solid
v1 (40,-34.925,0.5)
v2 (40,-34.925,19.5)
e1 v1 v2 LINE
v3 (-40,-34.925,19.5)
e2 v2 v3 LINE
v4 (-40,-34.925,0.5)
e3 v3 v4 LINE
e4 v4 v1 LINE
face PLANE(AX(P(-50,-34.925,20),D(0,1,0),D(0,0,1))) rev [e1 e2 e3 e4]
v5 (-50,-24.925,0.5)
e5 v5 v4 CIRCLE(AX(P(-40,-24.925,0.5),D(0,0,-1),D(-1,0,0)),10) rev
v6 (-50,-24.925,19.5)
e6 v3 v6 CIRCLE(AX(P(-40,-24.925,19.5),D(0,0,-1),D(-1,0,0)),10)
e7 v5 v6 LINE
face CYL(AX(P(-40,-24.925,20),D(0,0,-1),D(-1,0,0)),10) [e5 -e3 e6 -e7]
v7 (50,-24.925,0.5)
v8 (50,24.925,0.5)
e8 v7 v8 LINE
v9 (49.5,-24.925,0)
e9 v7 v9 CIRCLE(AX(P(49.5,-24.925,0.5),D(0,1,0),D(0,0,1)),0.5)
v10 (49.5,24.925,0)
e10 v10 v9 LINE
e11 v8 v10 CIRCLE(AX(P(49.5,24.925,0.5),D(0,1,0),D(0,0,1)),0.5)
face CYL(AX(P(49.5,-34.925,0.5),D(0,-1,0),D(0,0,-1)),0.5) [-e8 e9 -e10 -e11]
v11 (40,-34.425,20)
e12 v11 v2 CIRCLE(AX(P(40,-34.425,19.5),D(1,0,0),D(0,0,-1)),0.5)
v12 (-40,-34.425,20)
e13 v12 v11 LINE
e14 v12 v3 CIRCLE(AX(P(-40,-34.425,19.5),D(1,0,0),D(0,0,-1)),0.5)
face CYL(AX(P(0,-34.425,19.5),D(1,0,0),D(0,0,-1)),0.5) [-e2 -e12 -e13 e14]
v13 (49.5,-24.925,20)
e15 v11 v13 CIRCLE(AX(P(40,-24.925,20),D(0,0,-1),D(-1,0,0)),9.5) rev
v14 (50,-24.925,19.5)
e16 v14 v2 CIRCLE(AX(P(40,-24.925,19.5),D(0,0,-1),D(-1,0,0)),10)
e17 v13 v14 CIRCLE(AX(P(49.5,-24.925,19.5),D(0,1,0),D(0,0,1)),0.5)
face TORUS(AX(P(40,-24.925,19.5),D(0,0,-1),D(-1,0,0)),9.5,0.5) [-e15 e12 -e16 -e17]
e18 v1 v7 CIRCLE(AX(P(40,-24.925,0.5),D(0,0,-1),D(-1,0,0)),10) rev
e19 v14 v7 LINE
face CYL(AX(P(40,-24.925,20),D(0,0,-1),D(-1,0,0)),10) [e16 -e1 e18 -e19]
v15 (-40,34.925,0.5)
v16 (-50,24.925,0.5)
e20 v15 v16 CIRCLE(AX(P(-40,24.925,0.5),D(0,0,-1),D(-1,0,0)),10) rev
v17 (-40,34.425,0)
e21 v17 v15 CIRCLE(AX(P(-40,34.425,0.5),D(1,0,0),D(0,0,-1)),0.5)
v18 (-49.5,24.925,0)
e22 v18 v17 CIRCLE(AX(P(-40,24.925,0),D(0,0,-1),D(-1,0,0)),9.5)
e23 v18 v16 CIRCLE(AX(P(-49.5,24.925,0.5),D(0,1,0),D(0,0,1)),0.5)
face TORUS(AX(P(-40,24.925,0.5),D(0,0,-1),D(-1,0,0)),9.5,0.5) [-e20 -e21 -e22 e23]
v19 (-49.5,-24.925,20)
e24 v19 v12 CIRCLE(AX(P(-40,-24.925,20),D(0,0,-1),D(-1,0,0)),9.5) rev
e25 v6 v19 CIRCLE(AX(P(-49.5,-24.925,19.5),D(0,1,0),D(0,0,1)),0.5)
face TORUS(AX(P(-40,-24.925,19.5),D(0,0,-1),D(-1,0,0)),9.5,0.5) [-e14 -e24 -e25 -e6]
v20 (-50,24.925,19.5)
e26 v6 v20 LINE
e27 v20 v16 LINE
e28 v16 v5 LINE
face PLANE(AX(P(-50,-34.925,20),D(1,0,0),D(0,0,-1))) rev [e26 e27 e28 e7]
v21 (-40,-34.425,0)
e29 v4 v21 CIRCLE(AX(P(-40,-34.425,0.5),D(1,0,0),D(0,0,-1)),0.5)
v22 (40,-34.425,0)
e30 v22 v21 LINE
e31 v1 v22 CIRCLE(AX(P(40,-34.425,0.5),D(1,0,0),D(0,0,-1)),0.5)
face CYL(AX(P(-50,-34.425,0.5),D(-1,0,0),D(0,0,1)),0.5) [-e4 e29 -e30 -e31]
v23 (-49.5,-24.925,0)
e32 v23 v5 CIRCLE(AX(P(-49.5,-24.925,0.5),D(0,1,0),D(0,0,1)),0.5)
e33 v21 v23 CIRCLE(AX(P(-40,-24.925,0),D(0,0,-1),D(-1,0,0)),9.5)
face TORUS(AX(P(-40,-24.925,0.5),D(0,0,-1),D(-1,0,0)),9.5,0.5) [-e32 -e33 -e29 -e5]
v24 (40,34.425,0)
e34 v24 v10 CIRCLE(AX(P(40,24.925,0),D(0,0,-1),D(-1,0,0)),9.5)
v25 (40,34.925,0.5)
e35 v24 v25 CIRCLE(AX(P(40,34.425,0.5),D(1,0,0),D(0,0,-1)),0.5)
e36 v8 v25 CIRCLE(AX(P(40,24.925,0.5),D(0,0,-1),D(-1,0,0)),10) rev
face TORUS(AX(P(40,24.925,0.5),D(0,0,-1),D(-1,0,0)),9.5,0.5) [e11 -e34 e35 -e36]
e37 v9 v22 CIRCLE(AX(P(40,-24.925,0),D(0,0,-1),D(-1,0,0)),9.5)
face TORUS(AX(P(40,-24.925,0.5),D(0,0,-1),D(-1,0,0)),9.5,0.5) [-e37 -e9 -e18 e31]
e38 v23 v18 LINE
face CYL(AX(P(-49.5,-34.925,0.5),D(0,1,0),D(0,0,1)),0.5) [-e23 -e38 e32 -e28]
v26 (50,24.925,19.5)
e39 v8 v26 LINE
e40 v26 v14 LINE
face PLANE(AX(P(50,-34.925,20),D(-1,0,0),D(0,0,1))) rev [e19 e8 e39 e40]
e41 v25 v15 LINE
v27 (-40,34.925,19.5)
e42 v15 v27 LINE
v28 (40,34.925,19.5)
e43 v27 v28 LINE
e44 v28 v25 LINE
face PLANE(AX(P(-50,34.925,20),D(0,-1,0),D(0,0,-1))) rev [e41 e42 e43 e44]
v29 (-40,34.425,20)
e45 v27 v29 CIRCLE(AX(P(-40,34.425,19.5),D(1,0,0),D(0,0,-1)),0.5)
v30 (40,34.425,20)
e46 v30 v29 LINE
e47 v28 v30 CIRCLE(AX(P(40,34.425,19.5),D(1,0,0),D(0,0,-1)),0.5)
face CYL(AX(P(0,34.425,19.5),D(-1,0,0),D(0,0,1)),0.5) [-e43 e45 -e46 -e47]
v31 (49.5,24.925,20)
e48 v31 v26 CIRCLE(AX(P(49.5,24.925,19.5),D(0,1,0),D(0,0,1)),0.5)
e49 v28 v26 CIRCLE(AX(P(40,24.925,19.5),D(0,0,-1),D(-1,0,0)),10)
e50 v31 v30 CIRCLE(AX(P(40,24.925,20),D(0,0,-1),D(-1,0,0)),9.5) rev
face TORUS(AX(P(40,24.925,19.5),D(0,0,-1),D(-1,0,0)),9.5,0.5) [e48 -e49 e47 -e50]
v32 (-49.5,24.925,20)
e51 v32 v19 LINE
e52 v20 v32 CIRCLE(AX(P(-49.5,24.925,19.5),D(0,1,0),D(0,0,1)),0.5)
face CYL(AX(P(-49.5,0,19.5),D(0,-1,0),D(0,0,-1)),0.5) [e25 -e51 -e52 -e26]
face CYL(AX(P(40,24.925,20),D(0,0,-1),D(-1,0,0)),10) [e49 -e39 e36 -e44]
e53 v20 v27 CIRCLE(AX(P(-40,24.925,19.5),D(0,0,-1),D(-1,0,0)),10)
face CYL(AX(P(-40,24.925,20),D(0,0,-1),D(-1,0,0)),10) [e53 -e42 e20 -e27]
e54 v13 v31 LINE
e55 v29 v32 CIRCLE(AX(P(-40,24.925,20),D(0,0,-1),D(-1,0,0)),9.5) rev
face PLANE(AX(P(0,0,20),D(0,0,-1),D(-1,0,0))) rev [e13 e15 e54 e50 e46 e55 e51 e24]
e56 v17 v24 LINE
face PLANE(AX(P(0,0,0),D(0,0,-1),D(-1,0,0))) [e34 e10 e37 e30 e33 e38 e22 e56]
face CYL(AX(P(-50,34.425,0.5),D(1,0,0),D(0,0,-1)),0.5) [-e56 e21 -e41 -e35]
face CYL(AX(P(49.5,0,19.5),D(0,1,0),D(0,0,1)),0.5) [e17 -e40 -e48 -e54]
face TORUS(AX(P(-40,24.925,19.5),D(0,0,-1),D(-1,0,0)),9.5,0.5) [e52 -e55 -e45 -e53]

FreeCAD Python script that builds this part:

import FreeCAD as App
import Part
import Sketcher

V = App.Vector
Q = App.Units.Quantity


def edges_at(feature, points):
    """Names of the edges that pass closest to the given points."""
    edges = feature.Shape.Edges
    near = lambda p: min(range(len(edges)), key=lambda i: edges[i].distToShape(Part.Vertex(*p))[0])
    return sorted({f"Edge{near(p) + 1}" for p in points})

doc = App.newDocument("Part")
body = doc.addObject("PartDesign::Body", "Body")

sketch1 = body.newObject("Sketcher::SketchObject", "Sketch")
sketch1.AttachmentSupport = (doc.getObject("XY_Plane"), [""])
sketch1.MapMode = "FlatFace"
sketch1.addGeometry([
    Part.LineSegment(V(-50, 35, 0), V(-50, -35, 0)),
    Part.LineSegment(V(-50, -35, 0), V(50, -35, 0)),
    Part.LineSegment(V(50, -35, 0), V(50, 35, 0)),
    Part.LineSegment(V(50, 35, 0), V(-50, 35, 0)),
], False)
sketch1.addConstraint([
    Sketcher.Constraint("Coincident", 0, 2, 1, 1),
    Sketcher.Constraint("Coincident", 1, 2, 2, 1),
    Sketcher.Constraint("Coincident", 2, 2, 3, 1),
    Sketcher.Constraint("Coincident", 3, 2, 0, 1),
    Sketcher.Constraint("Vertical", 0),
    Sketcher.Constraint("Horizontal", 1),
    Sketcher.Constraint("Vertical", 2),
    Sketcher.Constraint("Horizontal", 3),
    Sketcher.Constraint("Symmetric", 0, 2, 2, 2, -1, 1),
    Sketcher.Constraint("DistanceX", 1, 1, 1, 2, Q("100 mm")),
    Sketcher.Constraint("DistanceY", 0, 2, 0, 1, Q("69.85 mm")),
])
pad1 = body.newObject("PartDesign::Pad", "Pad")
pad1.Profile = sketch1
pad1.Length = 20
doc.recompute()

fillet = body.newObject("PartDesign::Fillet", "Fillet")
fillet.Base = (pad1, edges_at(pad1, [
    (50, -34.925, 10),
    (-50, -34.925, 10),
    (-50, 34.925, 10),
    (50, 34.925, 10),
]))
fillet.Radius = 10
doc.recompute()

fillet2 = body.newObject("PartDesign::Fillet", "Fillet001")
fillet2.Base = (fillet, edges_at(fillet, [
    (0, -34.925, 0),
    (0, -34.925, 20),
    (50, 0, 0),
    (-50, 0, 0),
    (0, 34.925, 0),
    (-47.071, 31.996, 0),
    (47.071, 31.996, 0),
    (47.071, -31.996, 0),
    (-47.071, -31.996, 0),
    (-50, 0, 20),
    (50, 0, 20),
    (0, 34.925, 20),
    (-47.071, 31.996, 20),
    (47.071, 31.996, 20),
    (47.071, -31.996, 20),
    (-47.071, -31.996, 20),
]))
fillet2.Radius = 0.5

doc.recompute()
